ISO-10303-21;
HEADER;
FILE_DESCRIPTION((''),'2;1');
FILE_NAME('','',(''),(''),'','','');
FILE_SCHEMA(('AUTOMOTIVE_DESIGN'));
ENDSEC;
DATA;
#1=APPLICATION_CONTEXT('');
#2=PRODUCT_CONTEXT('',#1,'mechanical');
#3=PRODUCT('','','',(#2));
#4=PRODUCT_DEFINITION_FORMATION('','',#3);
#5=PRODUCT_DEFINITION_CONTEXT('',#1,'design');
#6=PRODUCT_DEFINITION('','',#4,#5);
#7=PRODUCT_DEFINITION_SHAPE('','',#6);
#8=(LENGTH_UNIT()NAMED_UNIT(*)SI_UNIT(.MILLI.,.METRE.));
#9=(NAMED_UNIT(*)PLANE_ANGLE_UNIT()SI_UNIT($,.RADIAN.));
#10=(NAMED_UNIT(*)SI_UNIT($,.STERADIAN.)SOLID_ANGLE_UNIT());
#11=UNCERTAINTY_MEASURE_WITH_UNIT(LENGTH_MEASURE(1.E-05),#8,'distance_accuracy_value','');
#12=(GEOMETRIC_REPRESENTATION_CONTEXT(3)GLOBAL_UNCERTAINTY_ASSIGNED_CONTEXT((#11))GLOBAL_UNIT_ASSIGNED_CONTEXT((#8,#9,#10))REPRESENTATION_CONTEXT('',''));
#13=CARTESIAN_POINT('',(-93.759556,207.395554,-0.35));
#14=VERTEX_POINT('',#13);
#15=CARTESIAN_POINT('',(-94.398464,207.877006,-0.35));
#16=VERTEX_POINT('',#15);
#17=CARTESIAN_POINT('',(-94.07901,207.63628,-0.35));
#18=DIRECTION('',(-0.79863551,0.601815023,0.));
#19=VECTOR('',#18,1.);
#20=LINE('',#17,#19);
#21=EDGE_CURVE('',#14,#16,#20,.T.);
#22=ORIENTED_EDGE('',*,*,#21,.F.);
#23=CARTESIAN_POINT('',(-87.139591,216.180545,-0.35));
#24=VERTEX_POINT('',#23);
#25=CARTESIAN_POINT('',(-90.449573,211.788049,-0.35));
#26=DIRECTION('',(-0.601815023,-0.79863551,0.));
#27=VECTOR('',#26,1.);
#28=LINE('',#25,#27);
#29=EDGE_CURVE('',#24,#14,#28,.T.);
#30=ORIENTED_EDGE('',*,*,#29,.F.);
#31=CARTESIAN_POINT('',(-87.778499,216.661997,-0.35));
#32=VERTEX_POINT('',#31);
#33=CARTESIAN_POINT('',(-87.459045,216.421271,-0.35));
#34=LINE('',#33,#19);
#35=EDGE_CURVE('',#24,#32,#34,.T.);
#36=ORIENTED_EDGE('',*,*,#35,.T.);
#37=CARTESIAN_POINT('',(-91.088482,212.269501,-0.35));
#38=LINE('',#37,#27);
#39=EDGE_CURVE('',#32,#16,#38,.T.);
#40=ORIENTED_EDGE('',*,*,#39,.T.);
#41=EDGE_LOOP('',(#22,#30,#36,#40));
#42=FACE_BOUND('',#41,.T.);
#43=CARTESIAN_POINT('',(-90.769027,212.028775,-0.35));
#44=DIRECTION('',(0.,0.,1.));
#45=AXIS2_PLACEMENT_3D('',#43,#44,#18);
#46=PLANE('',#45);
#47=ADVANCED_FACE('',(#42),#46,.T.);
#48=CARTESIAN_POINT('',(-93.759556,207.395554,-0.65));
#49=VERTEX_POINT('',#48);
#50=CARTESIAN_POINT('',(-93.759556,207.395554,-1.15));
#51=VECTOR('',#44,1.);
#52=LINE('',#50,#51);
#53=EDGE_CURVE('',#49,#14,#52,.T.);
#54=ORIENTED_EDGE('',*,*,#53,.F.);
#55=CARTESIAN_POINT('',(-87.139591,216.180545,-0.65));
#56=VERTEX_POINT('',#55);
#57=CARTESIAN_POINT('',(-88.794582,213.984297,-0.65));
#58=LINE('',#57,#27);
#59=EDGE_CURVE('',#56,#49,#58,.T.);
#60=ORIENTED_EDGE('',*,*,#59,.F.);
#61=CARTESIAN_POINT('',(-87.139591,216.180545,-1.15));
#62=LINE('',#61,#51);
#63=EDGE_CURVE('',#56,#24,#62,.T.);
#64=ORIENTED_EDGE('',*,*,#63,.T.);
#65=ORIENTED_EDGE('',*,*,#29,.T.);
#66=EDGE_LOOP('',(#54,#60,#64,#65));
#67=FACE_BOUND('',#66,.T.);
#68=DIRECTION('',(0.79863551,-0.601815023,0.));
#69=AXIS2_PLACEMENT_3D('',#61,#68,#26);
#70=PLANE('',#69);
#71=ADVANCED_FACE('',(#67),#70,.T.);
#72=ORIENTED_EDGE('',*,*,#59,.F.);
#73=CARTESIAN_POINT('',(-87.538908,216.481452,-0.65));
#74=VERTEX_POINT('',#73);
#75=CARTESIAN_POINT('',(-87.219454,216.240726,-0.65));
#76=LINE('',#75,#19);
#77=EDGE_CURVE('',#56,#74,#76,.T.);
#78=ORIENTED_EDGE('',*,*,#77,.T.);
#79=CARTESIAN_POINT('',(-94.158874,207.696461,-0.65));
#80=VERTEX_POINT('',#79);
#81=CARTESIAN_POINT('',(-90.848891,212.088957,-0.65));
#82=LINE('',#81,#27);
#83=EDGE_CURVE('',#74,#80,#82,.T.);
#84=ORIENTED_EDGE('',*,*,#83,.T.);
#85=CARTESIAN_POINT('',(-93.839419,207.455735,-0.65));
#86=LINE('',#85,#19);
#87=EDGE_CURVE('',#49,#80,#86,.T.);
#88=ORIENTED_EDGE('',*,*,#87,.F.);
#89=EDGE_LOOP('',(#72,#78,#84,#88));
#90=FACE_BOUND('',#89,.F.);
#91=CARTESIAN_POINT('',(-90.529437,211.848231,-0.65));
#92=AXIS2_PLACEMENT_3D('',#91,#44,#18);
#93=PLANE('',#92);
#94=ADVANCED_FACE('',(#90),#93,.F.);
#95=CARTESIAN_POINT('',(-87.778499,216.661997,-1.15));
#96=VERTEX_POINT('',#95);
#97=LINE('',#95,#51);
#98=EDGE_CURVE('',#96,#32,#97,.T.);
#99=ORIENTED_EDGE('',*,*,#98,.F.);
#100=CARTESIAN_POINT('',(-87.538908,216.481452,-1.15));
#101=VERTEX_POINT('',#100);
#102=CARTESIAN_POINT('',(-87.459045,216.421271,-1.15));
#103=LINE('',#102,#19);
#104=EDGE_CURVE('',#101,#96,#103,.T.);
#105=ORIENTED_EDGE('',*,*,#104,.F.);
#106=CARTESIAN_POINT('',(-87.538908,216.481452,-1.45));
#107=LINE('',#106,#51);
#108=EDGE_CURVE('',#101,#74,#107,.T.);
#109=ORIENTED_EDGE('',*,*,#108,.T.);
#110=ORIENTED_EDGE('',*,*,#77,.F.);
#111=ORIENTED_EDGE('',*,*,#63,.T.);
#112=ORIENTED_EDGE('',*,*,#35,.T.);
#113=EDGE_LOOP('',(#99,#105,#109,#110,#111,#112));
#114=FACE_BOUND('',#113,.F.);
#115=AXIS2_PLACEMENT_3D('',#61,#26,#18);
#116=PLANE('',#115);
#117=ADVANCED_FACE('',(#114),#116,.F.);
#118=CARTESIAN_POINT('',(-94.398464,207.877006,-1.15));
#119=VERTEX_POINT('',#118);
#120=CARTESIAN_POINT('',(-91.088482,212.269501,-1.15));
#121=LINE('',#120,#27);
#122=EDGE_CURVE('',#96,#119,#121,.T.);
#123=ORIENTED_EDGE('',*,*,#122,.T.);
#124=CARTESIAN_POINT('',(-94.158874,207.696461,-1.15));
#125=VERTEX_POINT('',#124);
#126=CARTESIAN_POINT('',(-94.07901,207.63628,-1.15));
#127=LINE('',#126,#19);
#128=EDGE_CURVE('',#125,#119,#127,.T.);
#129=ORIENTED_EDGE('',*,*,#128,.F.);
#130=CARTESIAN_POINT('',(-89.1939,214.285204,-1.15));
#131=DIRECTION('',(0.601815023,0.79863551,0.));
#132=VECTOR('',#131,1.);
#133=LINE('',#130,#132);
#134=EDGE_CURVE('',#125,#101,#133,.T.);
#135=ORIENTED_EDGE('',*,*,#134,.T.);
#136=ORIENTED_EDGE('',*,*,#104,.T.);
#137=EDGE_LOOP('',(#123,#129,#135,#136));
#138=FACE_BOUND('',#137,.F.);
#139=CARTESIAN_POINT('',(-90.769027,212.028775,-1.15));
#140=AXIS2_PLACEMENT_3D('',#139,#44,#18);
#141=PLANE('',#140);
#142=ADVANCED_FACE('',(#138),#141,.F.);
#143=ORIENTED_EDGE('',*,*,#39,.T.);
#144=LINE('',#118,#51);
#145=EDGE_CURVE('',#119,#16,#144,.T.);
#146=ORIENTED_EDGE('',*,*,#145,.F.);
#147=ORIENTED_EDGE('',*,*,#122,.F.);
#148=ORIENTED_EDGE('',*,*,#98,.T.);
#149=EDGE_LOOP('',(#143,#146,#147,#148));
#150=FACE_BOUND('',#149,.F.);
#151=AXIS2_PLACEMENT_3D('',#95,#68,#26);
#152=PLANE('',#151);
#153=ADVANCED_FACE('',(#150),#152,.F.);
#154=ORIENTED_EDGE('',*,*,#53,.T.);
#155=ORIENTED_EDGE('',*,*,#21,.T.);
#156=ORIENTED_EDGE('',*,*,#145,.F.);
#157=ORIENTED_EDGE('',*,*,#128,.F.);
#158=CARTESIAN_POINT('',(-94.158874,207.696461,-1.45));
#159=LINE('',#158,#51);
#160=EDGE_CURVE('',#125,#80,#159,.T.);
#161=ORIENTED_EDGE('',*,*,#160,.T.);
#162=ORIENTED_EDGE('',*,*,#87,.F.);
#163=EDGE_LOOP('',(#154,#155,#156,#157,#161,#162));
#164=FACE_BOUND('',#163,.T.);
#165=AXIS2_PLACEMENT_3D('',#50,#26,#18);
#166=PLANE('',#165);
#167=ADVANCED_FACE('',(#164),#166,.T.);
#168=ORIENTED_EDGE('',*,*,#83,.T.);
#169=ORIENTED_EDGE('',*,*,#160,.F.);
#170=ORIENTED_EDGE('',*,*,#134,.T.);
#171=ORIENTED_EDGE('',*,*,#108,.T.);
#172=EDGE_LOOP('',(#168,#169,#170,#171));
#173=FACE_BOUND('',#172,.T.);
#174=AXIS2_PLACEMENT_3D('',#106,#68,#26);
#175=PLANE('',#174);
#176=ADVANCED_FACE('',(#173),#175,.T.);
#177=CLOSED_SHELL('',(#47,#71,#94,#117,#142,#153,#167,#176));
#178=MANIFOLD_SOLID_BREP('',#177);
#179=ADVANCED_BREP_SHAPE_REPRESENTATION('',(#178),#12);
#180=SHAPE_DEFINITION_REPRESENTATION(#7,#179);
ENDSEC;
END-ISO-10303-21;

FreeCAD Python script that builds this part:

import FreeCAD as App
import Part
import Sketcher

V = App.Vector
Q = App.Units.Quantity

doc = App.newDocument("Part")
body = doc.addObject("PartDesign::Body", "Body")

sketch1 = body.newObject("Sketcher::SketchObject", "Sketch")
sketch1.AttachmentSupport = (doc.getObject("XY_Plane"), [""])
sketch1.MapMode = "FlatFace"
sketch1.addGeometry([
    Part.LineSegment(V(0, 11, 0), V(0, 0, 0)),
    Part.LineSegment(V(0, 0, 0), V(0.8, 0, 0)),
    Part.LineSegment(V(0.8, 0, 0), V(0.8, 11, 0)),
    Part.LineSegment(V(0.8, 11, 0), V(0, 11, 0)),
], False)
sketch1.addConstraint([
    Sketcher.Constraint("Coincident", 0, 2, 1, 1),
    Sketcher.Constraint("Coincident", 1, 2, 2, 1),
    Sketcher.Constraint("Coincident", 2, 2, 3, 1),
    Sketcher.Constraint("Coincident", 3, 2, 0, 1),
    Sketcher.Constraint("Vertical", 0),
    Sketcher.Constraint("Horizontal", 1),
    Sketcher.Constraint("Vertical", 2),
    Sketcher.Constraint("Horizontal", 3),
    Sketcher.Constraint("Coincident", 0, 2, -1, 1),
    Sketcher.Constraint("DistanceY", 0, 2, 0, 1, Q("11 mm")),
    Sketcher.Constraint("DistanceX", 1, 1, 1, 2, Q("0.8 mm")),
])
pad1 = body.newObject("PartDesign::Pad", "Pad")
pad1.Profile = sketch1
pad1.Length = 0.8
body2 = doc.addObject("PartDesign::Body", "Body001")

sketch2 = body2.newObject("Sketcher::SketchObject", "Sketch001")
sketch2.AttachmentSupport = (doc.getObject("XY_Plane001"), [""])
sketch2.MapMode = "FlatFace"
sketch2.AttachmentOffset = App.Placement(V(0, 0, 0.3), App.Rotation())
sketch2.addGeometry([
    Part.LineSegment(V(0.3, 11, 0), V(0.3, 0, 0)),
    Part.LineSegment(V(0.3, 0, 0), V(1.1, 0, 0)),
    Part.LineSegment(V(1.1, 0, 0), V(1.1, 11, 0)),
    Part.LineSegment(V(1.1, 11, 0), V(0.3, 11, 0)),
], False)
sketch2.addConstraint([
    Sketcher.Constraint("Coincident", 0, 2, 1, 1),
    Sketcher.Constraint("Coincident", 1, 2, 2, 1),
    Sketcher.Constraint("Coincident", 2, 2, 3, 1),
    Sketcher.Constraint("Coincident", 3, 2, 0, 1),
    Sketcher.Constraint("Vertical", 0),
    Sketcher.Constraint("Horizontal", 1),
    Sketcher.Constraint("Vertical", 2),
    Sketcher.Constraint("Horizontal", 3),
    Sketcher.Constraint("PointOnObject", 0, 2, -1),
    Sketcher.Constraint("DistanceY", 0, 2, 0, 1, Q("11 mm")),
    Sketcher.Constraint("DistanceX", 1, 1, 1, 2, Q("0.8 mm")),
    Sketcher.Constraint("DistanceX", -1, 1, 0, 2, Q("0.3 mm")),
])
pad2 = body2.newObject("PartDesign::Pad", "Pad001")
pad2.Profile = sketch2
pad2.Length = 0.8
doc.recompute()

boolean = body2.newObject("PartDesign::Boolean", "Boolean")
boolean.Type = "Cut"
boolean.addObjects([body])
body3 = doc.addObject("PartDesign::Body", "Body002")
doc.recompute()

body2.Placement = App.Placement(V(-86.9, 216, -1.45), App.Rotation(V(0, 0, 1), 143))
boolean2 = body3.newObject("PartDesign::Boolean", "Boolean001")
boolean2.Type = "Fuse"
boolean2.addObjects([body2])

doc.recompute()
